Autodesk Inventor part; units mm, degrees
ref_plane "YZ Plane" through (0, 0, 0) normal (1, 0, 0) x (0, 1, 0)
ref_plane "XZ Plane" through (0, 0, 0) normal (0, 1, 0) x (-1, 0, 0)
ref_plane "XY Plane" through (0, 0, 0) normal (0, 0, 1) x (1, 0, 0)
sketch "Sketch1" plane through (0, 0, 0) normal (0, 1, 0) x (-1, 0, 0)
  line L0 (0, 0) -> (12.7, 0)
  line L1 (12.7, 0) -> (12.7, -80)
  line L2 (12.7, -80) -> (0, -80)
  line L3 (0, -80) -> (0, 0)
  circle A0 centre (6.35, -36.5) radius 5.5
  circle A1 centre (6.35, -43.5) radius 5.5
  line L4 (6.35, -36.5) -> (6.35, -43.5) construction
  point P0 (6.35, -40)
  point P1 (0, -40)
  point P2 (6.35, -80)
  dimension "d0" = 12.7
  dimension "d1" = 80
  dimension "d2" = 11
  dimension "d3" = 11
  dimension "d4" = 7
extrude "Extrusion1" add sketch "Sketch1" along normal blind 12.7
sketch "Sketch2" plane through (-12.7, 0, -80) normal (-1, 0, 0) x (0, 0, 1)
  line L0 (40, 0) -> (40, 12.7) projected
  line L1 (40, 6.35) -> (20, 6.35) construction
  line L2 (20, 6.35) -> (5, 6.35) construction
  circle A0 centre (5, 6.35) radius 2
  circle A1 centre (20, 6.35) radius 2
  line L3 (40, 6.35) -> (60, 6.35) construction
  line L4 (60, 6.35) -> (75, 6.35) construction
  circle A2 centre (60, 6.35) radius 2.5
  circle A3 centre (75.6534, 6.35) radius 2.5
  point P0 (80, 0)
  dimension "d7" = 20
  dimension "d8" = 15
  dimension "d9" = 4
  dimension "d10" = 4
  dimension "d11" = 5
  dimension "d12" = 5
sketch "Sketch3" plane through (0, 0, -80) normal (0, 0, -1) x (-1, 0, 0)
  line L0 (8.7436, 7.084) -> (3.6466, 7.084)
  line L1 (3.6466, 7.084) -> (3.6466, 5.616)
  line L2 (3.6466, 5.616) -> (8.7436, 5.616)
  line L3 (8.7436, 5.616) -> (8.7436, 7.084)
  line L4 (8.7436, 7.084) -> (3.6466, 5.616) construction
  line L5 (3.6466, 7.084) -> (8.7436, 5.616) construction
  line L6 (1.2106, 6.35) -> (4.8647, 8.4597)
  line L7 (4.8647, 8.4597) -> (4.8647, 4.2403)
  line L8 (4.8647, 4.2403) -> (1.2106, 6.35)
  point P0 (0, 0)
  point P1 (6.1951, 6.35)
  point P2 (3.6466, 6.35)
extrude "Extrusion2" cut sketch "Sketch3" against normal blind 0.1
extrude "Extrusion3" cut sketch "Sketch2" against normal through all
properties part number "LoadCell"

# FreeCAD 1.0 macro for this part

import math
import FreeCAD as App
import Part
import Sketcher
Q = App.Units.Quantity


def add_polygon(sketch, points):
    """Adds a closed chain of lines whose ends are joined by coincident constraints."""
    first, n = sketch.GeometryCount, len(points)
    for a, b in zip(points, points[1:] + points[:1]):
        sketch.addGeometry(Part.LineSegment(App.Vector(*a, 0), App.Vector(*b, 0)), False)
    for i in range(n):
        sketch.addConstraint(Sketcher.Constraint("Coincident", first + i, 2, first + (i + 1) % n, 1))

doc = App.newDocument("Part")
params = doc.addObject("Spreadsheet::Sheet", "Params")
for row, (alias, value) in enumerate([
    ("sketch1_radius", "5.5 mm"),
    ("sketch1_height", "80 mm"),
    ("sketch1_width", "12.7 mm"),
    ("pad1_length", "12.7 mm"),
    ("pocket1_length", "0.1 mm"),
    ("sketch3_diameter", "4 mm"),
    ("sketch3_diameter2", "5 mm"),
], start=1):
    params.set(f"A{row}", alias)
    params.set(f"B{row}", "=" + value)
    params.setAlias(f"B{row}", alias)

body = doc.addObject("PartDesign::Body", "Body")

# Sketch on XZ plane
sketch1 = body.newObject("Sketcher::SketchObject", "Sketch")
sketch1.AttachmentSupport = (doc.getObject("XZ_Plane"), [""])
sketch1.MapMode = "FlatFace"
add_polygon(sketch1, [(-13, 0), (0, 0), (0, -80), (-13, -80)])  # lines 0-3
sketch1.addGeometry(Part.ArcOfCircle(Part.Circle(App.Vector(-6, -36, 0), App.Vector(0, 0, 1), 6), math.radians(-40), math.radians(220)), False)  # 4
sketch1.addGeometry(Part.ArcOfCircle(Part.Circle(App.Vector(-6, -44, 0), App.Vector(0, 0, 1), 6), math.radians(140), math.radians(400)), False)  # 5
sketch1.addConstraint([
    Sketcher.Constraint("Coincident", 4, 1, 5, 2),
    Sketcher.Constraint("Coincident", 5, 1, 4, 2),
    Sketcher.Constraint("Horizontal", 0),
    Sketcher.Constraint("Vertical", 1),
    Sketcher.Constraint("Horizontal", 2),
    Sketcher.Constraint("Vertical", 3),
    Sketcher.Constraint("Coincident", 0, 2, -1, 1),
    Sketcher.Constraint("Equal", 4, 5),
    Sketcher.Constraint("Horizontal", 4, 1, 5, 1),
    Sketcher.Constraint("Radius", 4, 5.5),
    Sketcher.Constraint("DistanceY", 1, 2, 1, 1, 80.0),
    Sketcher.Constraint("DistanceX", 0, 1, 0, 2, 12.7),
    Sketcher.Constraint("DistanceY", 5, 3, 4, 3, 7.0),
    Sketcher.Constraint("DistanceY", 4, 1, -1, 1, 40.0),
    Sketcher.Constraint("DistanceX", 4, 3, -1, 1, 6.35),
])
sketch1.setExpression("Constraints[13]", "Params.sketch1_radius")
sketch1.setExpression("Constraints[14]", "Params.sketch1_height")
sketch1.setExpression("Constraints[15]", "Params.sketch1_width")
pad1 = body.newObject("PartDesign::Pad", "Pad")
pad1.Profile = sketch1
pad1.setExpression("Length", "Params.pad1_length")
pad1.Reversed = True

# Sketch on XY plane
sketch2 = body.newObject("Sketcher::SketchObject", "Sketch001")
sketch2.AttachmentSupport = (doc.getObject("XY_Plane"), [""])
sketch2.MapMode = "FlatFace"
sketch2.AttachmentOffset = App.Placement(App.Vector(0, 0, -80), App.Rotation())
add_polygon(sketch2, [(-8.7, 5.6), (-8.7, 7.1), (-4.9, 7.1), (-4.9, 8.5), (-1.2, 6.3), (-4.9, 4.2), (-4.9, 5.6)])  # lines 0-6
sketch2.addConstraint([
    Sketcher.Constraint("Vertical", 0),
    Sketcher.Constraint("Horizontal", 1),
    Sketcher.Constraint("Vertical", 2),
    Sketcher.Constraint("Vertical", 5),
    Sketcher.Constraint("Horizontal", 6),
    Sketcher.Constraint("Vertical", 2, 2, 4, 2),
    Sketcher.Constraint("Equal", 2, 5),
    Sketcher.Constraint("Equal", 3, 4),
    Sketcher.Constraint("Angle", 3, Q("-30 deg")),
    Sketcher.Constraint("DistanceX", 1, 1, 1, 2, 3.879),
    Sketcher.Constraint("DistanceY", 0, 1, 0, 2, 1.468),
    Sketcher.Constraint("DistanceY", -1, 1, 3, 2, 6.35),
    Sketcher.Constraint("DistanceY", 2, 1, 2, 2, 1.3757),
    Sketcher.Constraint("DistanceX", 0, 2, -1, 1, 8.7436),
])
pocket1 = body.newObject("PartDesign::Pocket", "Pocket")
pocket1.Profile = sketch2
pocket1.setExpression("Length", "Params.pocket1_length")
pocket1.Reversed = True

# Sketch on YZ plane
sketch3 = body.newObject("Sketcher::SketchObject", "Sketch002")
sketch3.AttachmentSupport = (doc.getObject("YZ_Plane"), [""])
sketch3.MapMode = "FlatFace"
sketch3.AttachmentOffset = App.Placement(App.Vector(0, 0, -12.7), App.Rotation())
sketch3.addGeometry([
    Part.Circle(App.Vector(6.3, -75, 0), App.Vector(0, 0, 1), 2),
    Part.Circle(App.Vector(6.3, -60, 0), App.Vector(0, 0, 1), 2),
    Part.Circle(App.Vector(6.3, -20, 0), App.Vector(0, 0, 1), 2.5),
    Part.Circle(App.Vector(6.3, -4.3, 0), App.Vector(0, 0, 1), 2.5),
], False)
sketch3.addConstraint([
    Sketcher.Constraint("Equal", 0, 1),
    Sketcher.Constraint("Equal", 2, 3),
    Sketcher.Constraint("Vertical", 0, 3, 1, 3),
    Sketcher.Constraint("Vertical", 1, 3, 2, 3),
    Sketcher.Constraint("Vertical", 2, 3, 3, 3),
    Sketcher.Constraint("Diameter", 0, 4.0),
    Sketcher.Constraint("Diameter", 2, 5.0),
    Sketcher.Constraint("DistanceY", 2, 3, -1, 1, 20.0),
    Sketcher.Constraint("DistanceY", 0, 3, 1, 3, 15.0),
    Sketcher.Constraint("DistanceY", 0, 3, -1, 1, 75.0),
    Sketcher.Constraint("DistanceX", -1, 1, 0, 3, 6.35),
    Sketcher.Constraint("DistanceY", 3, 3, -1, 1, 4.3466),
])
sketch3.setExpression("Constraints[5]", "Params.sketch3_diameter")
sketch3.setExpression("Constraints[6]", "Params.sketch3_diameter2")
pocket2 = body.newObject("PartDesign::Pocket", "Pocket001")
pocket2.Profile = sketch3
pocket2.Type = "ThroughAll"
pocket2.Reversed = True

doc.recompute()
